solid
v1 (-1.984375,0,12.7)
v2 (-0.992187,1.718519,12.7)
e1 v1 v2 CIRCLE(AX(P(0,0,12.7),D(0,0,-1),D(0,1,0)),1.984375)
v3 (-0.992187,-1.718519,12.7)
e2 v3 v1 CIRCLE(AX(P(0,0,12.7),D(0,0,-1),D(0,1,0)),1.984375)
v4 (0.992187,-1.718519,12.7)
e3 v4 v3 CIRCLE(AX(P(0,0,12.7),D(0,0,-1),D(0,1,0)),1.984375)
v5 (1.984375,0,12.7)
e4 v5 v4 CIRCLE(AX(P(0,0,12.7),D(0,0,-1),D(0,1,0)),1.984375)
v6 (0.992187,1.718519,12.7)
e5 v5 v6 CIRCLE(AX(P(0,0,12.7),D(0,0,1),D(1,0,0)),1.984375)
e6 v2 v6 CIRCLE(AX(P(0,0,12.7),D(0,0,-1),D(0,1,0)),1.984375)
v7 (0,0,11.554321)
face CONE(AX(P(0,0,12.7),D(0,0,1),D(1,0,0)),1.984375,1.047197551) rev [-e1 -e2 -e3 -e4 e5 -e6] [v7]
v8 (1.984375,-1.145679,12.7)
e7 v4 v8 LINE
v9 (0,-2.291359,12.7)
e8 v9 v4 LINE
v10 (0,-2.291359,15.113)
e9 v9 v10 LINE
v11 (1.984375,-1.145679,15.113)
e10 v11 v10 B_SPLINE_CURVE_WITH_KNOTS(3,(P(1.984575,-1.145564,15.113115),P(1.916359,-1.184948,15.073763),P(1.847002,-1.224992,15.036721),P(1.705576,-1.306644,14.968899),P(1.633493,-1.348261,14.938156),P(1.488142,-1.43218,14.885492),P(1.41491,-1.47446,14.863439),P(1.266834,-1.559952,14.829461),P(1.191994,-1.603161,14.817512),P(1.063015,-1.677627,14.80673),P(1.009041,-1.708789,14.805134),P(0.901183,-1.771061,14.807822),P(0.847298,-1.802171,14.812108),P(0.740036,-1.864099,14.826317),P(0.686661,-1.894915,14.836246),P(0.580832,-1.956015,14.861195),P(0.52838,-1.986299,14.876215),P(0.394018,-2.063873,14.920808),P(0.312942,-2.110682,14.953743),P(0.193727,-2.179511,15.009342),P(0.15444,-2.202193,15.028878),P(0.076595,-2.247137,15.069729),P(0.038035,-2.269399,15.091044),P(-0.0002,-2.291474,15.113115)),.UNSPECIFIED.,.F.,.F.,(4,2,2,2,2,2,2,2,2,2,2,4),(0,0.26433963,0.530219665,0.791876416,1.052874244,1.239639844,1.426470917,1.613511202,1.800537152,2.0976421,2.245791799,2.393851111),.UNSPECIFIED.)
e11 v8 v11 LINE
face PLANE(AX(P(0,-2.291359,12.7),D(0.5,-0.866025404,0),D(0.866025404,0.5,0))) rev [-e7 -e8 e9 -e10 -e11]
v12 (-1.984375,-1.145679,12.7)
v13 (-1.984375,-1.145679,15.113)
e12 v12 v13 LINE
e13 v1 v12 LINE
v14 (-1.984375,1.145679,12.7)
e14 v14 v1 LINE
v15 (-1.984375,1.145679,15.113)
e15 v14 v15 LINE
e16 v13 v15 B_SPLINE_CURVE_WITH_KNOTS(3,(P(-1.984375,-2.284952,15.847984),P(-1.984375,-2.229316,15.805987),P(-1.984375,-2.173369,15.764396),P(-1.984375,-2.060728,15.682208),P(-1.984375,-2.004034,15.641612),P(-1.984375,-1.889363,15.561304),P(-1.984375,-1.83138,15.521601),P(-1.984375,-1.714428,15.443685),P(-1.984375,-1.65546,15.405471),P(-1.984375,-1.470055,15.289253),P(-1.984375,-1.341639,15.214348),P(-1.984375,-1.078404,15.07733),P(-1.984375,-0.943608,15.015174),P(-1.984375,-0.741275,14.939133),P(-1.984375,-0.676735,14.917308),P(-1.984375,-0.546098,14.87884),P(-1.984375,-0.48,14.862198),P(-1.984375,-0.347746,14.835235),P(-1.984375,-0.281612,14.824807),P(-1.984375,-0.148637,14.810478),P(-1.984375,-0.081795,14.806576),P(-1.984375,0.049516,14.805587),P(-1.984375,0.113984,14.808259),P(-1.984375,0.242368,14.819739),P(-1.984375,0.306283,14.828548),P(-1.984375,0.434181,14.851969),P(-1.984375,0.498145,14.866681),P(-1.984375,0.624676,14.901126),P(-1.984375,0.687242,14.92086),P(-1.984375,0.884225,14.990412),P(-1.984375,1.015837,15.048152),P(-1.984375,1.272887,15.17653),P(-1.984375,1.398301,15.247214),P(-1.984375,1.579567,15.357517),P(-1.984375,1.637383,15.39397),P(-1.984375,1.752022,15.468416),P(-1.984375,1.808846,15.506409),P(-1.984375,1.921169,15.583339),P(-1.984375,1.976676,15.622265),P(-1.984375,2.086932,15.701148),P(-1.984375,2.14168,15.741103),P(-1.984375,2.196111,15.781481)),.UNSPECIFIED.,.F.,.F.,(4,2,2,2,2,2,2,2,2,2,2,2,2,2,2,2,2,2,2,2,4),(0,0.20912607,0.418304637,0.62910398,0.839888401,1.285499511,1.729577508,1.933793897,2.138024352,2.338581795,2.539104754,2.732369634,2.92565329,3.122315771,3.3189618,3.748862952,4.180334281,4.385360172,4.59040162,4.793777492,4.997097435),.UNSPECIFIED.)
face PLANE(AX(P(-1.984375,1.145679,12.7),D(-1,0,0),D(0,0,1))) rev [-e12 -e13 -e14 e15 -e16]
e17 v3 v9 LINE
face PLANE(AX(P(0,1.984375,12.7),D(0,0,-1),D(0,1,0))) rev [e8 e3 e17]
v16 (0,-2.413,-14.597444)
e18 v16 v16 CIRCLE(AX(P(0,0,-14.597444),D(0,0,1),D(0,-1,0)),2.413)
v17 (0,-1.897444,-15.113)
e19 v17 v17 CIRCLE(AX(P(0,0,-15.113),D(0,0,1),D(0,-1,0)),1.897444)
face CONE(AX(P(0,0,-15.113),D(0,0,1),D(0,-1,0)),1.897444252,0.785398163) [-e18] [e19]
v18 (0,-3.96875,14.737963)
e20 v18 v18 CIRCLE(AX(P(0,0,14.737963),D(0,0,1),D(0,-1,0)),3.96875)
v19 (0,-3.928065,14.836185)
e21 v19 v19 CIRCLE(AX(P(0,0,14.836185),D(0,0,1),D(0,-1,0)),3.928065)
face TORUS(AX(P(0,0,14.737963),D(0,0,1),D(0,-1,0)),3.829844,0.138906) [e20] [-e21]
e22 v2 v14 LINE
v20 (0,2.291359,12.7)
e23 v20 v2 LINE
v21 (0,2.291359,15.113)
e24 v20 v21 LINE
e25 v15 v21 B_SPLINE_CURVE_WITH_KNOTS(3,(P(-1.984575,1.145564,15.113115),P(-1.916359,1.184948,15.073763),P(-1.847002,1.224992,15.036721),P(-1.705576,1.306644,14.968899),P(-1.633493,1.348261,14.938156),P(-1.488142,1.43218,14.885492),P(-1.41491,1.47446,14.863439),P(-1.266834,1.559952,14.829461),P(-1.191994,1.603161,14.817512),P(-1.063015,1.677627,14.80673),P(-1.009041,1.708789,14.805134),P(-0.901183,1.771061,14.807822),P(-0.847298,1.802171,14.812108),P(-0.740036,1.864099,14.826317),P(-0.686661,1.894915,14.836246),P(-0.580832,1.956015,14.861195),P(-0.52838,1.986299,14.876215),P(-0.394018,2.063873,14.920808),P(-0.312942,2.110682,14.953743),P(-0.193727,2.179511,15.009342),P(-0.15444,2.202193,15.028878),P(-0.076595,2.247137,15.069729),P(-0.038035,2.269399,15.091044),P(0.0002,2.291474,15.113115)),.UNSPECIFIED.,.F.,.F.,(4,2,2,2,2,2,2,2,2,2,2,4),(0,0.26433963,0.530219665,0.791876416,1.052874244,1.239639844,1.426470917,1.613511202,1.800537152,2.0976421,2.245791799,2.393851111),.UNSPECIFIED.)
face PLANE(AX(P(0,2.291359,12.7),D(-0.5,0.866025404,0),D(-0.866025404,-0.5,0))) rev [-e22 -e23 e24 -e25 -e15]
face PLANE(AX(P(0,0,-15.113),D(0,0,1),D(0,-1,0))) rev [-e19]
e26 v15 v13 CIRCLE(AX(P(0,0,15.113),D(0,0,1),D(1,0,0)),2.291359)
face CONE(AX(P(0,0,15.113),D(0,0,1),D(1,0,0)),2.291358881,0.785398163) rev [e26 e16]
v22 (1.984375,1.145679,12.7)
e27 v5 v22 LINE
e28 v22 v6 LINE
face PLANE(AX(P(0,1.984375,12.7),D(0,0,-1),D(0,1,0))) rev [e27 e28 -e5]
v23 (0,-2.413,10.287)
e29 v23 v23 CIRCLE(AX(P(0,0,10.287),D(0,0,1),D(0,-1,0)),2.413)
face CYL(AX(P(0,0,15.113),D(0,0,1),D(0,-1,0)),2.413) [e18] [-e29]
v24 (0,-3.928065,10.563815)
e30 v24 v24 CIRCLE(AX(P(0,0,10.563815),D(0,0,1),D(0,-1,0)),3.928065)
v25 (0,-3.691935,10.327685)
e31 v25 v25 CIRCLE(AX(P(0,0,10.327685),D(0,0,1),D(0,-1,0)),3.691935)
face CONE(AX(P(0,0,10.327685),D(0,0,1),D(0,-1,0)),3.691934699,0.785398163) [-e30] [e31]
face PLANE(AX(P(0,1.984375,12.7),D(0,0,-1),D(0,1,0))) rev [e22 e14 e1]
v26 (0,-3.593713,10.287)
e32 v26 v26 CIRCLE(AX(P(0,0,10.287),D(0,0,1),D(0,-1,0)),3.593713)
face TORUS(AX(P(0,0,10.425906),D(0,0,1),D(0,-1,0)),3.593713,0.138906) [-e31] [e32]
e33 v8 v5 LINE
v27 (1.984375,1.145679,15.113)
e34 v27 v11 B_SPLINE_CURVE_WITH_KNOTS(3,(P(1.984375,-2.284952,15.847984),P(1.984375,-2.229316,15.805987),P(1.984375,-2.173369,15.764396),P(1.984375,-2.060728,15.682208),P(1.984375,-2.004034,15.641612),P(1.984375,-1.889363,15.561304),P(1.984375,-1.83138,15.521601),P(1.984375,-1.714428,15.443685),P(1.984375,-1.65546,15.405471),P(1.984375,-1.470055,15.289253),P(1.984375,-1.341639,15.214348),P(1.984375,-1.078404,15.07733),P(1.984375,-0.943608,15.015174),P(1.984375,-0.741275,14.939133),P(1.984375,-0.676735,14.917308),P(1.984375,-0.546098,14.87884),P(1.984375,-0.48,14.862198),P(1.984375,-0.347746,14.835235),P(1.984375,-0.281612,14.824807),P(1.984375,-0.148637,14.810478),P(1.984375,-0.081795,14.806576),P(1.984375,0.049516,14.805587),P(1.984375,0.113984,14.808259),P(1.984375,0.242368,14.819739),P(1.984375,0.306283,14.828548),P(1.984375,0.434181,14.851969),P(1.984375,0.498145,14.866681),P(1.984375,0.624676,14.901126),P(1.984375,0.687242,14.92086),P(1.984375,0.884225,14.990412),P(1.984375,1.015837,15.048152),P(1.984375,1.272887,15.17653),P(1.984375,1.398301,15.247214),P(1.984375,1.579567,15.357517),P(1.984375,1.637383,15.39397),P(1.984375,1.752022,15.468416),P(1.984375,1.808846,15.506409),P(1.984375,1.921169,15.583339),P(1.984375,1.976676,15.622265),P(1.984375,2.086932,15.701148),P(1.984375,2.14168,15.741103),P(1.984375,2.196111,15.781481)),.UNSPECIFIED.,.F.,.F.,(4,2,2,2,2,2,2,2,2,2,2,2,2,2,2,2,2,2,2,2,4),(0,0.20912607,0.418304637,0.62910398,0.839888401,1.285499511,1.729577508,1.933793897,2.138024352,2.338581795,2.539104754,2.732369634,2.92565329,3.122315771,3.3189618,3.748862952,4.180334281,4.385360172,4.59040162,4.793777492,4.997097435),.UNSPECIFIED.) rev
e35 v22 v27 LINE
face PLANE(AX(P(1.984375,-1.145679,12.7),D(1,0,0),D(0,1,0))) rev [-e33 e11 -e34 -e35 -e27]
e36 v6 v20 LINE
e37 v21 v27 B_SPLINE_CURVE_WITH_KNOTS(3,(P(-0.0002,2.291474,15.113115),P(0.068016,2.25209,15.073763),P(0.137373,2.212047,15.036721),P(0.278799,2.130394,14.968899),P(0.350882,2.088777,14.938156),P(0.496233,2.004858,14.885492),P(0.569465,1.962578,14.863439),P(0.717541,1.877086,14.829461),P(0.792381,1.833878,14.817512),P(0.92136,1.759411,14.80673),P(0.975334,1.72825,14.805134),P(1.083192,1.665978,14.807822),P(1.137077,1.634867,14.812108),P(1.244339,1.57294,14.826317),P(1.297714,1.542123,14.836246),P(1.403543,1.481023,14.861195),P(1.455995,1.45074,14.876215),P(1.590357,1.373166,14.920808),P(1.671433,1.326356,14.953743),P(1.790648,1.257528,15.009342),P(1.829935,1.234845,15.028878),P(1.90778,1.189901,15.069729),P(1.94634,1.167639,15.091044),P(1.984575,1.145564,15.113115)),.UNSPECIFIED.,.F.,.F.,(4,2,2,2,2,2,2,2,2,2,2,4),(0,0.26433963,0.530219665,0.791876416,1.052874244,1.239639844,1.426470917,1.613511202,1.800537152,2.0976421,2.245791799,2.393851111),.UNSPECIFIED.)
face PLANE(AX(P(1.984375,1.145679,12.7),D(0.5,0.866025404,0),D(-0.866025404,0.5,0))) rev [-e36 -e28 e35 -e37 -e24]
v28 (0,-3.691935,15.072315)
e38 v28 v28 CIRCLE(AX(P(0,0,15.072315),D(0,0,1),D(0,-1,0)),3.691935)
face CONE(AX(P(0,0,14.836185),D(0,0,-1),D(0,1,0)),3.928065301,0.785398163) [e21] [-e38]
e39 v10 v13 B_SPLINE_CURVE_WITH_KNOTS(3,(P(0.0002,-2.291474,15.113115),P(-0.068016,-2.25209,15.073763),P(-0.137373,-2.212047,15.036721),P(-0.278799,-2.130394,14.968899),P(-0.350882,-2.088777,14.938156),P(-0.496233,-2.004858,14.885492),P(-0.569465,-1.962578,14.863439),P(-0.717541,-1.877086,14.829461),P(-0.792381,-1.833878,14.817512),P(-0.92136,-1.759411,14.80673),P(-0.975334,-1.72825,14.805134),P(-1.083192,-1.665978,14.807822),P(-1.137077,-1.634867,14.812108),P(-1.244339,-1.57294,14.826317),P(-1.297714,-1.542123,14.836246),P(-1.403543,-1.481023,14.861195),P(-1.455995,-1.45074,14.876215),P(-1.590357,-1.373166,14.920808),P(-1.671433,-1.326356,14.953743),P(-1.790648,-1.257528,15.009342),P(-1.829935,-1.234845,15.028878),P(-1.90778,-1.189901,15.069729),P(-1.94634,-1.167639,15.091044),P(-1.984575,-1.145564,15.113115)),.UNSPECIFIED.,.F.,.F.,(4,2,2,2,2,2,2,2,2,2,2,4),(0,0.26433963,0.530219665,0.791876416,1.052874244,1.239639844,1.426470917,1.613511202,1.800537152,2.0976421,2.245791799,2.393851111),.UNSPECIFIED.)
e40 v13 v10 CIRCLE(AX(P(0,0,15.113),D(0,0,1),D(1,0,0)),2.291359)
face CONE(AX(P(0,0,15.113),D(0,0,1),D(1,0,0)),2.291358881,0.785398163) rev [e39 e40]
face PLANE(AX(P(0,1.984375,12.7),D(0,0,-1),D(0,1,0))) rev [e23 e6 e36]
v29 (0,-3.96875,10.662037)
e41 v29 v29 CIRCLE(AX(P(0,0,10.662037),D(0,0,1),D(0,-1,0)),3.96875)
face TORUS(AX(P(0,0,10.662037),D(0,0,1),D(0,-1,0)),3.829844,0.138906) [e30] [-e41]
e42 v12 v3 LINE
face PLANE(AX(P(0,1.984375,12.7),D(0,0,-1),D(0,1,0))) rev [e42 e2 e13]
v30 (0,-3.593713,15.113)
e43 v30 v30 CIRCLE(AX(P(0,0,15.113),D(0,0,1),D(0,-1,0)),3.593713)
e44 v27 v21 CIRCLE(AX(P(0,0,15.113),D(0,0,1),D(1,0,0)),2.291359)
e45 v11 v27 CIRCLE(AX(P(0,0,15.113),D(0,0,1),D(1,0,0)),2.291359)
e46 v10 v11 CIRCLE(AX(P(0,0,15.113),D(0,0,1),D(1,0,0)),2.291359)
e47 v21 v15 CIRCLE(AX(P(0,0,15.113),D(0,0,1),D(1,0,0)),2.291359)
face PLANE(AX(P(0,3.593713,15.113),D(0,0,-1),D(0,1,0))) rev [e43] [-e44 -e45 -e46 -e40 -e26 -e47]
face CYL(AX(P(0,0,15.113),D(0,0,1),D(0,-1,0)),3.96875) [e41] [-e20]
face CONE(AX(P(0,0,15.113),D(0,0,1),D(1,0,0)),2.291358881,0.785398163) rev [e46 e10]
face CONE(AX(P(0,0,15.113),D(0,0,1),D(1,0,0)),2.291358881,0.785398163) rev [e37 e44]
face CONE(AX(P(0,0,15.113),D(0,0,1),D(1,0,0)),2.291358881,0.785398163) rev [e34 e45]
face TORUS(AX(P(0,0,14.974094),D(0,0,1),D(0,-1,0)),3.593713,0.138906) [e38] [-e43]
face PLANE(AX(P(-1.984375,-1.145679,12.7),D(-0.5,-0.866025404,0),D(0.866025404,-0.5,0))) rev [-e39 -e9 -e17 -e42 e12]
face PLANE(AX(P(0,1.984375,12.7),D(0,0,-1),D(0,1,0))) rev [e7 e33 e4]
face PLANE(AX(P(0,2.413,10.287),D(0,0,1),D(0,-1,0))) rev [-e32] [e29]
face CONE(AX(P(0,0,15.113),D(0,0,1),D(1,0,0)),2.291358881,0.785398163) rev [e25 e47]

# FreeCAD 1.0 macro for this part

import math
import FreeCAD as App
import Part
import Sketcher
from FreeCAD import Vector
Q = App.Units.Quantity


def add_polygon(sketch, points):
    """Adds a closed chain of lines whose ends are joined by coincident constraints."""
    first, n = sketch.GeometryCount, len(points)
    for a, b in zip(points, points[1:] + points[:1]):
        sketch.addGeometry(Part.LineSegment(App.Vector(*a, 0), App.Vector(*b, 0)), False)
    for i in range(n):
        sketch.addConstraint(Sketcher.Constraint("Coincident", first + i, 2, first + (i + 1) % n, 1))

doc = App.newDocument("Part")
body = doc.addObject("PartDesign::Body", "Body")

sketch1 = body.newObject("Sketcher::SketchObject", "Sketch")
sketch1.AttachmentSupport = (doc.getObject("YZ_Plane"), [""])
sketch1.MapMode = "FlatFace"
sketch1.addGeometry([
    Part.LineSegment(Vector(3.59, 15.11, 0), Vector(1.98, 15.11, 0)),
    Part.LineSegment(Vector(1.98, 15.11, 0), Vector(1.98, 12.7, 0)),
    Part.LineSegment(Vector(1.98, 12.7, 0), Vector(0, 12.7, 0)),
    Part.LineSegment(Vector(0, 12.7, 0), Vector(0, -15.11, 0)),
    Part.LineSegment(Vector(0, -15.11, 0), Vector(1.9, -15.11, 0)),
    Part.LineSegment(Vector(1.9, -15.11, 0), Vector(2.41, -14.6, 0)),
    Part.LineSegment(Vector(2.41, -14.6, 0), Vector(2.41, 10.29, 0)),
    Part.LineSegment(Vector(2.41, 10.29, 0), Vector(3.59, 10.29, 0)),
    Part.ArcOfCircle(Part.Circle(Vector(3.59, 10.43, 0), Vector(0, 0, 1), 0.14), math.radians(-90), math.radians(-45)),
    Part.LineSegment(Vector(3.69, 10.33, 0), Vector(3.93, 10.56, 0)),
    Part.ArcOfCircle(Part.Circle(Vector(3.83, 10.66, 0), Vector(0, 0, 1), 0.14), math.radians(-45), math.radians(0)),
    Part.LineSegment(Vector(3.97, 10.66, 0), Vector(3.97, 14.74, 0)),
    Part.ArcOfCircle(Part.Circle(Vector(3.83, 14.74, 0), Vector(0, 0, 1), 0.14), math.radians(0), math.radians(45)),
    Part.LineSegment(Vector(3.93, 14.84, 0), Vector(3.69, 15.07, 0)),
    Part.ArcOfCircle(Part.Circle(Vector(3.59, 14.97, 0), Vector(0, 0, 1), 0.14), math.radians(45), math.radians(90)),
], False)
sketch1.addConstraint([
    Sketcher.Constraint("Coincident", 0, 2, 1, 1),
    Sketcher.Constraint("Coincident", 1, 2, 2, 1),
    Sketcher.Constraint("Coincident", 2, 2, 3, 1),
    Sketcher.Constraint("Coincident", 3, 2, 4, 1),
    Sketcher.Constraint("Coincident", 4, 2, 5, 1),
    Sketcher.Constraint("Coincident", 5, 2, 6, 1),
    Sketcher.Constraint("Coincident", 6, 2, 7, 1),
    Sketcher.Constraint("Tangent", 7, 2, 8, 1),
    Sketcher.Constraint("Tangent", 8, 2, 9, 1),
    Sketcher.Constraint("Tangent", 9, 2, 10, 1),
    Sketcher.Constraint("Tangent", 10, 2, 11, 1),
    Sketcher.Constraint("Tangent", 11, 2, 12, 1),
    Sketcher.Constraint("Tangent", 12, 2, 13, 1),
    Sketcher.Constraint("Tangent", 13, 2, 14, 1),
    Sketcher.Constraint("Tangent", 14, 2, 0, 1),
    Sketcher.Constraint("Horizontal", 0),
    Sketcher.Constraint("Vertical", 1),
    Sketcher.Constraint("Horizontal", 2),
    Sketcher.Constraint("Vertical", 3),
    Sketcher.Constraint("Horizontal", 4),
    Sketcher.Constraint("Vertical", 6),
    Sketcher.Constraint("Horizontal", 7),
    Sketcher.Constraint("Vertical", 11),
    Sketcher.Constraint("Equal", 8, 10),
    Sketcher.Constraint("Equal", 10, 12),
    Sketcher.Constraint("Equal", 12, 14),
    Sketcher.Constraint("PointOnObject", 2, 2, -2),
    Sketcher.Constraint("Parallel", 5, 9),
    Sketcher.Constraint("Perpendicular", 9, 13),
    Sketcher.Constraint("Vertical", 8, 3, 14, 3),
    Sketcher.Constraint("Vertical", 9, 2, 12, 2),
    Sketcher.Constraint("DistanceY", -1, 1, 1, 2, Q("0.5 in")),
    Sketcher.Constraint("DistanceX", 2, 2, 2, 1, Q("0.078125 in")),
    Sketcher.Constraint("DistanceY", 1, 2, 1, 1, Q("0.095 in")),
    Sketcher.Constraint("DistanceY", 3, 2, 3, 1, Q("1.095 in")),
    Sketcher.Constraint("DistanceX", -1, 1, 5, 2, Q("0.095 in")),
    Sketcher.Constraint("DistanceY", -1, 1, 6, 2, Q("0.405 in")),
    Sketcher.Constraint("DistanceX", -1, 1, 10, 2, Q("0.15625 in")),
    Sketcher.Constraint("Radius", 8, Q("0.138906 mm")),
    Sketcher.Constraint("DistanceX", 0, 2, 0, 1, Q("1.609338 mm")),
    Sketcher.Constraint("DistanceX", 4, 2, 10, 3, Q("1.932399 mm")),
])
revolution = body.newObject("PartDesign::Revolution", "Revolution")
revolution.Profile = sketch1
revolution.ReferenceAxis = (sketch1, ["V_Axis"])
revolution.Angle = 360

sketch2 = body.newObject("Sketcher::SketchObject", "Sketch001")
sketch2.AttachmentSupport = (doc.getObject("XY_Plane"), [""])
sketch2.MapMode = "FlatFace"
sketch2.AttachmentOffset = App.Placement(Vector(0, 0, 0.595 * 25.4), App.Rotation())
add_polygon(sketch2, [(0, 2.3), (-2, 1.1), (-2, -1.1), (0, -2.3), (2, -1.1), (2, 1.1)])
sketch2.addConstraint([
    Sketcher.Constraint("Vertical", 1),
    Sketcher.Constraint("Vertical", 4),
    Sketcher.Constraint("Symmetric", 0, 2, 3, 2, -1, 1),
    Sketcher.Constraint("Symmetric", 2, 2, 5, 2, -1, 1),
    Sketcher.Constraint("PointOnObject", 2, 2, -2),
    Sketcher.Constraint("Parallel", 2, 5),
    Sketcher.Constraint("Horizontal", 1, 2, 3, 2),
    Sketcher.Constraint("Angle", 0, Q("-150 deg")),
    Sketcher.Constraint("DistanceX", 0, 2, -1, 1, Q("0.078125 in")),
    Sketcher.Constraint("DistanceY", 1, 2, 1, 1, Q("2.291359 mm")),
])
pocket1 = body.newObject("PartDesign::Pocket", "Pocket")
pocket1.Profile = sketch2
pocket1.Length = Q("0.095 in")

sketch3 = body.newObject("Sketcher::SketchObject", "Sketch002")
sketch3.AttachmentSupport = (doc.getObject("YZ_Plane"), [""])
sketch3.MapMode = "FlatFace"
add_polygon(sketch3, [(0, 15.1), (-2.3, 15.1), (0, 12.8)])
sketch3.addConstraint([
    Sketcher.Constraint("Horizontal", 0),
    Sketcher.Constraint("Vertical", 2),
    Sketcher.Constraint("PointOnObject", 1, 2, -2),
    Sketcher.Constraint("Equal", 0, 2),
    Sketcher.Constraint("DistanceY", -1, 1, 0, 2, Q("0.595 in")),
    Sketcher.Constraint("DistanceX", 0, 2, 0, 1, Q("2.291359 mm")),
])
groove = body.newObject("PartDesign::Groove", "Groove")
groove.Profile = sketch3
groove.ReferenceAxis = (sketch3, ["V_Axis"])
groove.Angle = 360

sketch4 = body.newObject("Sketcher::SketchObject", "Sketch003")
sketch4.AttachmentSupport = (doc.getObject("YZ_Plane"), [""])
sketch4.MapMode = "FlatFace"
add_polygon(sketch4, [(0, 12.7), (-2, 12.7), (0, 11.6)])
sketch4.addConstraint([
    Sketcher.Constraint("Horizontal", 0),
    Sketcher.Constraint("Vertical", 2),
    Sketcher.Constraint("PointOnObject", 1, 2, -2),
    Sketcher.Constraint("Angle", 1, Q("-30 deg")),
    Sketcher.Constraint("DistanceY", -1, 1, 0, 2, Q("0.5 in")),
    Sketcher.Constraint("DistanceX", 0, 2, 0, 1, Q("0.078125 in")),
])
groove2 = body.newObject("PartDesign::Groove", "Groove001")
groove2.Profile = sketch4
groove2.ReferenceAxis = (sketch4, ["V_Axis"])
groove2.Angle = 360

doc.recompute()
